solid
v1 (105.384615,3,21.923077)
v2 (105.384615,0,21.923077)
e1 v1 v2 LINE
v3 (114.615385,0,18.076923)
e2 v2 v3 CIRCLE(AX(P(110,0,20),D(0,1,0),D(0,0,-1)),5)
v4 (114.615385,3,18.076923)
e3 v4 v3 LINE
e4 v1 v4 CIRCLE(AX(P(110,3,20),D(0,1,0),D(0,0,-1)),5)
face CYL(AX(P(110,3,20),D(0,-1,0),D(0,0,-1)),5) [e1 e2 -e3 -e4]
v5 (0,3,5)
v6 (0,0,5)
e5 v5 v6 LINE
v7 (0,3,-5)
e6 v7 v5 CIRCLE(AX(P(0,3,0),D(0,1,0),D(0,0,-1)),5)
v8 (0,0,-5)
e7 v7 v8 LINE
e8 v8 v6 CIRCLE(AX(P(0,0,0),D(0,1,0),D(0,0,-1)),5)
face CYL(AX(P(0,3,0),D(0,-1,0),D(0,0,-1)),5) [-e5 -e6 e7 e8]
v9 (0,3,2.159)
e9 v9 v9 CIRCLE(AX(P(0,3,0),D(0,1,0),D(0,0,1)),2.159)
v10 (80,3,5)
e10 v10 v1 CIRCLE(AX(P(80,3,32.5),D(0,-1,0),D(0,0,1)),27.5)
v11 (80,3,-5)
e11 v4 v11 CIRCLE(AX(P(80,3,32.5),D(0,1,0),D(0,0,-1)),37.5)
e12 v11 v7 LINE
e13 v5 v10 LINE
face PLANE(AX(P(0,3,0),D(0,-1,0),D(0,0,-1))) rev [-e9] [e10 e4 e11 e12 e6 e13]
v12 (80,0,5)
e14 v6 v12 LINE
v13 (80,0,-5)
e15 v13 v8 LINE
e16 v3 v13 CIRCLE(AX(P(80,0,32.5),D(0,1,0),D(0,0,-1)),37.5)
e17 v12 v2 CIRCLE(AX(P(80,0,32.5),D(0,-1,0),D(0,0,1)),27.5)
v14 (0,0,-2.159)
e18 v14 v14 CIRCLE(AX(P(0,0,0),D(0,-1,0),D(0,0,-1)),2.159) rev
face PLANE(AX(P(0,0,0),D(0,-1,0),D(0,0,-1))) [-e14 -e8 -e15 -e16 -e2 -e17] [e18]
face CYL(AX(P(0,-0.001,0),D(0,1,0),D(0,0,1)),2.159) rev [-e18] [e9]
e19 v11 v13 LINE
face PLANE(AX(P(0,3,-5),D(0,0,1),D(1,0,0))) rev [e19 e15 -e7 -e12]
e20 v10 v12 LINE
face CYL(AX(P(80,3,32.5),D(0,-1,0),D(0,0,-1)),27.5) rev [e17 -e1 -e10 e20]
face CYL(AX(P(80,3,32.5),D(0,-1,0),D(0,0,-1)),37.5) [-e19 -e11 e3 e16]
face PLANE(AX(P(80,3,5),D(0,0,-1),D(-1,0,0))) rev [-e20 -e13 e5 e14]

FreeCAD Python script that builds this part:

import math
import FreeCAD as App
import Part
import Sketcher
Q = App.Units.Quantity

doc = App.newDocument("Part")
params = doc.addObject("Spreadsheet::Sheet", "Params")
for row, (alias, value) in enumerate([
    ("sketch1_radius", "5 mm"),
    ("sketch1_radius2", "27.5 mm"),
    ("sketch1_width", "80 mm"),
    ("pad1_length", "3 mm"),
], start=1):
    params.set(f"A{row}", alias)
    params.set(f"B{row}", "=" + value)
    params.setAlias(f"B{row}", alias)

body = doc.addObject("PartDesign::Body", "Body")

sketch1 = body.newObject("Sketcher::SketchObject", "Sketch")
sketch1.AttachmentSupport = (doc.getObject("XZ_Plane"), [""])
sketch1.MapMode = "FlatFace"
sketch1.addGeometry([
    Part.LineSegment(App.Vector(80, -5, 0), App.Vector(0, -5, 0)),
    Part.ArcOfCircle(Part.Circle(App.Vector(0, 0, 0), App.Vector(0, 0, 1), 5), math.radians(90), math.radians(270)),
    Part.LineSegment(App.Vector(0, 5, 0), App.Vector(80, 5, 0)),
    Part.ArcOfCircle(Part.Circle(App.Vector(80, 33, 0), App.Vector(0, 0, 1), 28), math.radians(-90), math.radians(-23)),
    Part.ArcOfCircle(Part.Circle(App.Vector(110, 20, 0), App.Vector(0, 0, 1), 5), math.radians(-23), math.radians(157)),
    Part.ArcOfCircle(Part.Circle(App.Vector(80, 32, 0), App.Vector(0, 0, 1), 37), math.radians(-90), math.radians(-23)),
], False)
sketch1.addConstraint([
    Sketcher.Constraint("Tangent", 0, 2, 1, 2),
    Sketcher.Constraint("Tangent", 1, 1, 2, 1),
    Sketcher.Constraint("Tangent", 2, 2, 3, 1),
    Sketcher.Constraint("Tangent", 3, 2, 4, 2),
    Sketcher.Constraint("Tangent", 4, 1, 5, 2),
    Sketcher.Constraint("Tangent", 5, 1, 0, 1),
    Sketcher.Constraint("Horizontal", 0),
    Sketcher.Constraint("Horizontal", 2),
    Sketcher.Constraint("Coincident", 1, 3, -1, 1),
    Sketcher.Constraint("Coincident", 5, 3, 3, 3),
    Sketcher.Constraint("Radius", 1, Q("5 mm")),
    Sketcher.Constraint("Radius", 3, Q("27.5 mm")),
    Sketcher.Constraint("DistanceX", 0, 2, 0, 1, Q("80 mm")),
    Sketcher.Constraint("DistanceX", -1, 1, 4, 3, Q("110 mm")),
])
sketch1.setExpression("Constraints[10]", "Params.sketch1_radius")
sketch1.setExpression("Constraints[11]", "Params.sketch1_radius2")
sketch1.setExpression("Constraints[12]", "Params.sketch1_width")
pad1 = body.newObject("PartDesign::Pad", "Pad")
pad1.Profile = sketch1
pad1.setExpression("Length", "Params.pad1_length")
pad1.Reversed = True

sketch2 = body.newObject("Sketcher::SketchObject", "Sketch001")
sketch2.AttachmentSupport = (doc.getObject("XZ_Plane"), [""])
sketch2.MapMode = "FlatFace"
sketch2.AttachmentOffset = App.Placement(App.Vector(0, 0, -3), App.Rotation())
sketch2.addGeometry(Part.Circle(App.Vector(0, 0, 0), App.Vector(0, 0, 1), 2.2), False)
sketch2.addConstraint([
    Sketcher.Constraint("Coincident", 0, 3, -1, 1),
    Sketcher.Constraint("Diameter", 0, Q("4.318 mm")),
])
pocket1 = body.newObject("PartDesign::Pocket", "Pocket")
pocket1.Profile = sketch2
pocket1.Type = "UpToFirst"
pocket1.Reversed = True

doc.recompute()
